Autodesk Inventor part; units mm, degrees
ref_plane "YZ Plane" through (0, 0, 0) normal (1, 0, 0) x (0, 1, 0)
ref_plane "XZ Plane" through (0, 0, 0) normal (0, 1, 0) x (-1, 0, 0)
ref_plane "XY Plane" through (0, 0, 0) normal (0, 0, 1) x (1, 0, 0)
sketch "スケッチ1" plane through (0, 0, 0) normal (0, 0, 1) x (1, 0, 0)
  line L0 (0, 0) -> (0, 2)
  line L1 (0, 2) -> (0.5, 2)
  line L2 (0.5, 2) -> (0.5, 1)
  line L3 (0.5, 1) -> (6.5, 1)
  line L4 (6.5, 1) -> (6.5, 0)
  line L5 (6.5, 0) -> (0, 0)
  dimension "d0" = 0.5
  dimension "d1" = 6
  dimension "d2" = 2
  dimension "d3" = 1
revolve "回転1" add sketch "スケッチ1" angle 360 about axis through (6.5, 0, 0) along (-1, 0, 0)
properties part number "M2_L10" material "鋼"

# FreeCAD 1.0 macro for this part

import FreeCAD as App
import Part
import Sketcher
from FreeCAD import Vector


def add_polygon(sketch, points):
    """Adds a closed chain of lines whose ends are joined by coincident constraints."""
    first, n = sketch.GeometryCount, len(points)
    for a, b in zip(points, points[1:] + points[:1]):
        sketch.addGeometry(Part.LineSegment(App.Vector(*a, 0), App.Vector(*b, 0)), False)
    for i in range(n):
        sketch.addConstraint(Sketcher.Constraint("Coincident", first + i, 2, first + (i + 1) % n, 1))

doc = App.newDocument("Part")
body = doc.addObject("PartDesign::Body", "Body")

sketch1 = body.newObject("Sketcher::SketchObject", "Sketch")
sketch1.AttachmentSupport = (doc.getObject("XY_Plane"), [""])
sketch1.MapMode = "FlatFace"
add_polygon(sketch1, [(0, 2), (0, 0), (6.5, 0), (6.5, 1), (0.5, 1), (0.5, 2)])
sketch1.addConstraint([
    Sketcher.Constraint("Vertical", 0),
    Sketcher.Constraint("Horizontal", 1),
    Sketcher.Constraint("Vertical", 2),
    Sketcher.Constraint("Horizontal", 3),
    Sketcher.Constraint("Vertical", 4),
    Sketcher.Constraint("Horizontal", 5),
    Sketcher.Constraint("Coincident", 0, 2, -1, 1),
    Sketcher.Constraint("Equal", 2, 4),
    Sketcher.Constraint("DistanceX", 3, 2, 3, 1, 6.0),
    Sketcher.Constraint("DistanceY", 0, 2, 0, 1, 2.0),
    Sketcher.Constraint("DistanceX", 5, 2, 5, 1, 0.5),
])
revolution = body.newObject("PartDesign::Revolution", "Revolution")
revolution.Profile = sketch1
revolution.ReferenceAxis = (sketch1, ["H_Axis"])
revolution.Angle = 360

doc.recompute()
